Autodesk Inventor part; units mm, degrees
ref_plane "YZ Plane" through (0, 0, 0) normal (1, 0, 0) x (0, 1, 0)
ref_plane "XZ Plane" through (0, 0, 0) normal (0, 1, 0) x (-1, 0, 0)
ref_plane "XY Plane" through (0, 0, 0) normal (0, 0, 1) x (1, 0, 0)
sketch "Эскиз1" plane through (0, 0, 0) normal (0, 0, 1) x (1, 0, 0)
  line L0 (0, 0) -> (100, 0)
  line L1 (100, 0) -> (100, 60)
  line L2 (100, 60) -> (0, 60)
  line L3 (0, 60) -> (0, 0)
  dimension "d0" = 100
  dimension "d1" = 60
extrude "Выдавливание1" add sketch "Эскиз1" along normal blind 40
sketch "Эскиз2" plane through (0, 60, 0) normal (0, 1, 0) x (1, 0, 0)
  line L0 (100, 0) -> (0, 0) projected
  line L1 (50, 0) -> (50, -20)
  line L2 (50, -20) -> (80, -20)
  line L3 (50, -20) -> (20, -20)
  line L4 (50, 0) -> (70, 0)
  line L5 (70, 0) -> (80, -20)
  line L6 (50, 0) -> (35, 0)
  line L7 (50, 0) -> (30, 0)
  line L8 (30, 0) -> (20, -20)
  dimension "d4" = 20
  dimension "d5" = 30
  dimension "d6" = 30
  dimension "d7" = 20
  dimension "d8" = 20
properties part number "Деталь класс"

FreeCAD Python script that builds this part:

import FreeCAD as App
import Part
import Sketcher
Q = App.Units.Quantity


def add_polygon(sketch, points):
    """Adds a closed chain of lines whose ends are joined by coincident constraints."""
    first, n = sketch.GeometryCount, len(points)
    for a, b in zip(points, points[1:] + points[:1]):
        sketch.addGeometry(Part.LineSegment(App.Vector(*a, 0), App.Vector(*b, 0)), False)
    for i in range(n):
        sketch.addConstraint(Sketcher.Constraint("Coincident", first + i, 2, first + (i + 1) % n, 1))

doc = App.newDocument("Part")
body = doc.addObject("PartDesign::Body", "Body")

# Sketch on XY plane
sketch1 = body.newObject("Sketcher::SketchObject", "Sketch")
sketch1.AttachmentSupport = (doc.getObject("XY_Plane"), [""])
sketch1.MapMode = "FlatFace"
add_polygon(sketch1, [(0, 60), (0, 0), (100, 0), (100, 60)])  # lines 0-3
sketch1.addConstraint([
    Sketcher.Constraint("Vertical", 0),
    Sketcher.Constraint("Horizontal", 1),
    Sketcher.Constraint("Vertical", 2),
    Sketcher.Constraint("Horizontal", 3),
    Sketcher.Constraint("Coincident", 0, 2, -1, 1),
    Sketcher.Constraint("DistanceX", 1, 1, 1, 2, Q("3.937 in")),
    Sketcher.Constraint("DistanceY", 0, 2, 0, 1, Q("2.3622 in")),
])
pad1 = body.newObject("PartDesign::Pad", "Pad")
pad1.Profile = sketch1
pad1.Length = Q("1.5748031 in")

doc.recompute()
